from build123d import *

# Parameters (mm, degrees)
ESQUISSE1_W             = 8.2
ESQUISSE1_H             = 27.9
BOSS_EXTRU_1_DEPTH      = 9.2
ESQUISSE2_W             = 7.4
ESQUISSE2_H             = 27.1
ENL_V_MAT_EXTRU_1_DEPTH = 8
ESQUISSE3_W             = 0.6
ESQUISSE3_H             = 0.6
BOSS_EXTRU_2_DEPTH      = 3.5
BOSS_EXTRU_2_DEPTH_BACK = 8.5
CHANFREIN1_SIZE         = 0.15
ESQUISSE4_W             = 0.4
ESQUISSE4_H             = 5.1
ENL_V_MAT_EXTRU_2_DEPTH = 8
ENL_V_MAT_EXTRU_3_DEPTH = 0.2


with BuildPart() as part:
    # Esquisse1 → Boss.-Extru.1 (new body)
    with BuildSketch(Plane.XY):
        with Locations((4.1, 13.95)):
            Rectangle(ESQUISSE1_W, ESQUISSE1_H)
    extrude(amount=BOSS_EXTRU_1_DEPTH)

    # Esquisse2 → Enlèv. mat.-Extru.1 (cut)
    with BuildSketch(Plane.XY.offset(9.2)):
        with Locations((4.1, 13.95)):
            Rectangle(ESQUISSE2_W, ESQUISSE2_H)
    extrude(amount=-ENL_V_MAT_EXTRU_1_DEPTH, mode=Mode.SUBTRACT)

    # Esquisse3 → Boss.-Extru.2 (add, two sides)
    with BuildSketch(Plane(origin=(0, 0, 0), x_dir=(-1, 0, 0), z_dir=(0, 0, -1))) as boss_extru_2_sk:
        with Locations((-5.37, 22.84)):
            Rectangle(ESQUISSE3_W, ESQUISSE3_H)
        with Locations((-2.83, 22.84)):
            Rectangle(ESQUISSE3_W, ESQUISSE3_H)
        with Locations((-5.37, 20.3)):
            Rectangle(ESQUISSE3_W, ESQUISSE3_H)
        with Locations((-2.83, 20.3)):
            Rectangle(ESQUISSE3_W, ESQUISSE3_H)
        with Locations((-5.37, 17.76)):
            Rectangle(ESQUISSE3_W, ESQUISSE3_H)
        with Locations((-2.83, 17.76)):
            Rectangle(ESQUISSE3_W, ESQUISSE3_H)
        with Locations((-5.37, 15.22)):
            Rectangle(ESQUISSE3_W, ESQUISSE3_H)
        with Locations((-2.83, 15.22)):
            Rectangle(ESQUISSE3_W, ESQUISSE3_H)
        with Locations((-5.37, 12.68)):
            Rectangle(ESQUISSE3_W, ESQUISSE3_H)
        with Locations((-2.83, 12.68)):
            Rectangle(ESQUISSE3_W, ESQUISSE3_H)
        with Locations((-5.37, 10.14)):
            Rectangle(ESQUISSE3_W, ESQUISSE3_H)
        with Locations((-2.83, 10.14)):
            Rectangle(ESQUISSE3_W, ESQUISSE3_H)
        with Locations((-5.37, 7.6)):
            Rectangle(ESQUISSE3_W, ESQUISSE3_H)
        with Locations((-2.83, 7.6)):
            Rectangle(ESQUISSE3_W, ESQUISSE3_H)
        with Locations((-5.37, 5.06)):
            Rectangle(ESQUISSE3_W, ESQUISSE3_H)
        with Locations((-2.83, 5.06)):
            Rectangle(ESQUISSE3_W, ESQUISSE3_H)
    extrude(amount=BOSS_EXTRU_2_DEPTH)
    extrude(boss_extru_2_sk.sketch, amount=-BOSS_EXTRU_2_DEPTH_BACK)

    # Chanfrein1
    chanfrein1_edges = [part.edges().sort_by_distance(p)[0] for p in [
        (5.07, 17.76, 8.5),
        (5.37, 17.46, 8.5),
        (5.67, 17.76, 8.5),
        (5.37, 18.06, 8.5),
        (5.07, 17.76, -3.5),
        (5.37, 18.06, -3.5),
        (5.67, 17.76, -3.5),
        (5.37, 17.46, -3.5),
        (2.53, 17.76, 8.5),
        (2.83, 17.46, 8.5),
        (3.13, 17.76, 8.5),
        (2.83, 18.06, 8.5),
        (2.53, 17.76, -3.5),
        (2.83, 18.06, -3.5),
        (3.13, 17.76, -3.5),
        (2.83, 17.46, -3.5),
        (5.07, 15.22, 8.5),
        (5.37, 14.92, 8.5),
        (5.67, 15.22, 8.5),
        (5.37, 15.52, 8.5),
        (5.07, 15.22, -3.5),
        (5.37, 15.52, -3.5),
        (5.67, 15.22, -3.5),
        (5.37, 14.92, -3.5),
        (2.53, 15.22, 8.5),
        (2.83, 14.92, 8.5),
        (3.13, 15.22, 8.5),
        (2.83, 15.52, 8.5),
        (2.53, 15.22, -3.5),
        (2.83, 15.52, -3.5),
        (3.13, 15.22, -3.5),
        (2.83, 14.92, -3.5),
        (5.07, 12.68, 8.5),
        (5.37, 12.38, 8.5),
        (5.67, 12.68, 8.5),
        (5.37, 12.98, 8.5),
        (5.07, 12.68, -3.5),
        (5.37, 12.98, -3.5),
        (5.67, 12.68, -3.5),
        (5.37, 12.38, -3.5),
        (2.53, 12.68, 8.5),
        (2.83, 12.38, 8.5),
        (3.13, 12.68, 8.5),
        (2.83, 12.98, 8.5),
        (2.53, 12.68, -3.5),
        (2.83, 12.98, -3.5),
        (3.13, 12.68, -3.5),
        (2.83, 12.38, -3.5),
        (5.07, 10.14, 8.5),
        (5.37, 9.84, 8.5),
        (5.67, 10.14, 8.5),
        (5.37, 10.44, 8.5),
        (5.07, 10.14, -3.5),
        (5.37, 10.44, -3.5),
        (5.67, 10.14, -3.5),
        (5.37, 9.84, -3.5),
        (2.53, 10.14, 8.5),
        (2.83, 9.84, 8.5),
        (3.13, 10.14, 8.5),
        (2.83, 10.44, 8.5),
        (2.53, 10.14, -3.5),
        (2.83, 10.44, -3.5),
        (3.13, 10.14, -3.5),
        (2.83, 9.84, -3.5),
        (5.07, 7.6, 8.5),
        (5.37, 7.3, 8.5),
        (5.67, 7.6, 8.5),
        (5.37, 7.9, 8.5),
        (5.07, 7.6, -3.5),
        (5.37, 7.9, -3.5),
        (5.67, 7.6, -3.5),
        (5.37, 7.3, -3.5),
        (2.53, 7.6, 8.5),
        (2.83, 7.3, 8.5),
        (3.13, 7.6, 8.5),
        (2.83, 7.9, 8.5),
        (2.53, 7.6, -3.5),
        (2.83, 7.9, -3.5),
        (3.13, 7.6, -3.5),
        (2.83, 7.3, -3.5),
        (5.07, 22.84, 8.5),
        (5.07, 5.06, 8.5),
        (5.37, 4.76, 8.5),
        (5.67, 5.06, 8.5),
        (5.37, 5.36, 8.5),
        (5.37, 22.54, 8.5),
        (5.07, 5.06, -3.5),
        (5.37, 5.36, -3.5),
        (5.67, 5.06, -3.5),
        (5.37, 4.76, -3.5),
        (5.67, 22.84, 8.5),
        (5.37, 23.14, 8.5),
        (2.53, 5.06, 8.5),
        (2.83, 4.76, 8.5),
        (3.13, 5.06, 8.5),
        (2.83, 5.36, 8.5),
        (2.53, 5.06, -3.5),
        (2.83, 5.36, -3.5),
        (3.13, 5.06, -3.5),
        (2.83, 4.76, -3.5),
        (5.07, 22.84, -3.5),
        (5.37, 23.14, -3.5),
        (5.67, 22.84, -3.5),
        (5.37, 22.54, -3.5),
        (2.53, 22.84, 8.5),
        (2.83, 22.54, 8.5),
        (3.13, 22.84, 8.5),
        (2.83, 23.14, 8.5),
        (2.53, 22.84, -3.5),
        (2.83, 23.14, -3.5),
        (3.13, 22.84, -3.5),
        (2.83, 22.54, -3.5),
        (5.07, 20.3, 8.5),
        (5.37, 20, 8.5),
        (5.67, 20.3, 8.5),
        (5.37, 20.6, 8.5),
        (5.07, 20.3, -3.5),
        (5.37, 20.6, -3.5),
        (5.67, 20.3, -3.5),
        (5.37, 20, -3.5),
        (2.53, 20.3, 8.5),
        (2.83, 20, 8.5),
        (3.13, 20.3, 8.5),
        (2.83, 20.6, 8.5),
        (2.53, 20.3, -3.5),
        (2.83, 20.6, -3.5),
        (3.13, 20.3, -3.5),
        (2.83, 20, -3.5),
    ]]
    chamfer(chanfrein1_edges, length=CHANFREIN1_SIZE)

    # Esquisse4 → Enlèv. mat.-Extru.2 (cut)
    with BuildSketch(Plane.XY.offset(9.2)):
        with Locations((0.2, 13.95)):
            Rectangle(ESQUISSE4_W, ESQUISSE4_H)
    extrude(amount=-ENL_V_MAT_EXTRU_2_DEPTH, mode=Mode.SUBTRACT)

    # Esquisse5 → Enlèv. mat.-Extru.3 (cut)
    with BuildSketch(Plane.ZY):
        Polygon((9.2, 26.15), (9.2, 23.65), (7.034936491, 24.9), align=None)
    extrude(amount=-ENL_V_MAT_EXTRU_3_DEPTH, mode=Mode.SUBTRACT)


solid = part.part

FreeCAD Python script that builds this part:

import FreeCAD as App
import Part
import Sketcher
from FreeCAD import Vector
Q = App.Units.Quantity


def edges_at(feature, points):
    """Names of the edges that pass closest to the given points."""
    edges = feature.Shape.Edges
    near = lambda p: min(range(len(edges)), key=lambda i: edges[i].distToShape(Part.Vertex(*p))[0])
    return sorted({f"Edge{near(p) + 1}" for p in points})


def add_polygon(sketch, points):
    """Adds a closed chain of lines whose ends are joined by coincident constraints."""
    first, n = sketch.GeometryCount, len(points)
    for a, b in zip(points, points[1:] + points[:1]):
        sketch.addGeometry(Part.LineSegment(App.Vector(*a, 0), App.Vector(*b, 0)), False)
    for i in range(n):
        sketch.addConstraint(Sketcher.Constraint("Coincident", first + i, 2, first + (i + 1) % n, 1))

doc = App.newDocument("Part")
body = doc.addObject("PartDesign::Body", "Body")

sketch1 = doc.addObject("Sketcher::SketchObject", "Sketch")
body.addObject(sketch1)
sketch1.AttachmentSupport = (doc.XY_Plane, [""])
sketch1.MapMode = "FlatFace"
add_polygon(sketch1, [(0, 27.9), (0, 0), (8.2, 0), (8.2, 27.9)])
sketch1.addConstraint(Sketcher.Constraint("Vertical", 0))
sketch1.addConstraint(Sketcher.Constraint("Horizontal", 1))
sketch1.addConstraint(Sketcher.Constraint("Vertical", 2))
sketch1.addConstraint(Sketcher.Constraint("Horizontal", 3))
sketch1.addConstraint(Sketcher.Constraint("Coincident", 0, 2, -1, 1))
sketch1.addConstraint(Sketcher.Constraint("DistanceX", 1, 1, 1, 2, 8.2))
sketch1.addConstraint(Sketcher.Constraint("DistanceY", 0, 2, 0, 1, 27.9))
pad1 = doc.addObject("PartDesign::Pad", "Pad")
body.addObject(pad1)
pad1.Profile = sketch1
pad1.Length = 9.2

sketch2 = doc.addObject("Sketcher::SketchObject", "Sketch001")
body.addObject(sketch2)
sketch2.AttachmentSupport = (doc.XY_Plane, [""])
sketch2.MapMode = "FlatFace"
sketch2.AttachmentOffset = App.Placement(Vector(0, 0, 9.2), App.Rotation())
add_polygon(sketch2, [(0.4, 27.5), (0.4, 0.4), (7.8, 0.4), (7.8, 27.5)])
sketch2.addConstraint(Sketcher.Constraint("Vertical", 0))
sketch2.addConstraint(Sketcher.Constraint("Horizontal", 1))
sketch2.addConstraint(Sketcher.Constraint("Vertical", 2))
sketch2.addConstraint(Sketcher.Constraint("Horizontal", 3))
sketch2.addConstraint(Sketcher.Constraint("DistanceX", 1, 1, 1, 2, 7.4))
sketch2.addConstraint(Sketcher.Constraint("DistanceY", 0, 2, 0, 1, 27.1))
sketch2.addConstraint(Sketcher.Constraint("DistanceX", -1, 1, 0, 2, 0.4))
sketch2.addConstraint(Sketcher.Constraint("DistanceY", -1, 1, 0, 2, 0.4))
pocket1 = doc.addObject("PartDesign::Pocket", "Pocket")
body.addObject(pocket1)
pocket1.Profile = sketch2
pocket1.Length = 8

sketch3 = doc.addObject("Sketcher::SketchObject", "Sketch002")
body.addObject(sketch3)
sketch3.AttachmentSupport = (doc.XY_Plane, [""])
sketch3.MapMode = "FlatFace"
add_polygon(sketch3, [(5.67, 23.14), (5.67, 22.54), (5.07, 22.54), (5.07, 23.14)])
add_polygon(sketch3, [(3.13, 23.14), (3.13, 22.54), (2.53, 22.54), (2.53, 23.14)])
add_polygon(sketch3, [(5.67, 20.6), (5.67, 20), (5.07, 20), (5.07, 20.6)])
add_polygon(sketch3, [(3.13, 20.6), (3.13, 20), (2.53, 20), (2.53, 20.6)])
add_polygon(sketch3, [(5.67, 18.06), (5.67, 17.46), (5.07, 17.46), (5.07, 18.06)])
add_polygon(sketch3, [(3.13, 18.06), (3.13, 17.46), (2.53, 17.46), (2.53, 18.06)])
add_polygon(sketch3, [(5.67, 15.52), (5.67, 14.92), (5.07, 14.92), (5.07, 15.52)])
add_polygon(sketch3, [(3.13, 15.52), (3.13, 14.92), (2.53, 14.92), (2.53, 15.52)])
add_polygon(sketch3, [(5.67, 12.98), (5.67, 12.38), (5.07, 12.38), (5.07, 12.98)])
add_polygon(sketch3, [(3.13, 12.98), (3.13, 12.38), (2.53, 12.38), (2.53, 12.98)])
add_polygon(sketch3, [(5.67, 10.44), (5.67, 9.84), (5.07, 9.84), (5.07, 10.44)])
add_polygon(sketch3, [(3.13, 10.44), (3.13, 9.84), (2.53, 9.84), (2.53, 10.44)])
add_polygon(sketch3, [(5.67, 7.9), (5.67, 7.3), (5.07, 7.3), (5.07, 7.9)])
add_polygon(sketch3, [(3.13, 7.9), (3.13, 7.3), (2.53, 7.3), (2.53, 7.9)])
add_polygon(sketch3, [(5.67, 5.36), (5.67, 4.76), (5.07, 4.76), (5.07, 5.36)])
add_polygon(sketch3, [(3.13, 5.36), (3.13, 4.76), (2.53, 4.76), (2.53, 5.36)])
sketch3.addConstraint(Sketcher.Constraint("Vertical", 0))
sketch3.addConstraint(Sketcher.Constraint("Horizontal", 1))
sketch3.addConstraint(Sketcher.Constraint("Vertical", 2))
sketch3.addConstraint(Sketcher.Constraint("Horizontal", 3))
sketch3.addConstraint(Sketcher.Constraint("Vertical", 4))
sketch3.addConstraint(Sketcher.Constraint("Horizontal", 5))
sketch3.addConstraint(Sketcher.Constraint("Vertical", 6))
sketch3.addConstraint(Sketcher.Constraint("Horizontal", 7))
sketch3.addConstraint(Sketcher.Constraint("Vertical", 8))
sketch3.addConstraint(Sketcher.Constraint("Horizontal", 9))
sketch3.addConstraint(Sketcher.Constraint("Vertical", 10))
sketch3.addConstraint(Sketcher.Constraint("Horizontal", 11))
sketch3.addConstraint(Sketcher.Constraint("Vertical", 12))
sketch3.addConstraint(Sketcher.Constraint("Horizontal", 13))
sketch3.addConstraint(Sketcher.Constraint("Vertical", 14))
sketch3.addConstraint(Sketcher.Constraint("Horizontal", 15))
sketch3.addConstraint(Sketcher.Constraint("Vertical", 16))
sketch3.addConstraint(Sketcher.Constraint("Horizontal", 17))
sketch3.addConstraint(Sketcher.Constraint("Vertical", 18))
sketch3.addConstraint(Sketcher.Constraint("Horizontal", 19))
sketch3.addConstraint(Sketcher.Constraint("Vertical", 20))
sketch3.addConstraint(Sketcher.Constraint("Horizontal", 21))
sketch3.addConstraint(Sketcher.Constraint("Vertical", 22))
sketch3.addConstraint(Sketcher.Constraint("Horizontal", 23))
sketch3.addConstraint(Sketcher.Constraint("Vertical", 24))
sketch3.addConstraint(Sketcher.Constraint("Horizontal", 25))
sketch3.addConstraint(Sketcher.Constraint("Vertical", 26))
sketch3.addConstraint(Sketcher.Constraint("Horizontal", 27))
sketch3.addConstraint(Sketcher.Constraint("Vertical", 28))
sketch3.addConstraint(Sketcher.Constraint("Horizontal", 29))
sketch3.addConstraint(Sketcher.Constraint("Vertical", 30))
sketch3.addConstraint(Sketcher.Constraint("Horizontal", 31))
sketch3.addConstraint(Sketcher.Constraint("Vertical", 32))
sketch3.addConstraint(Sketcher.Constraint("Horizontal", 33))
sketch3.addConstraint(Sketcher.Constraint("Vertical", 34))
sketch3.addConstraint(Sketcher.Constraint("Horizontal", 35))
sketch3.addConstraint(Sketcher.Constraint("Vertical", 36))
sketch3.addConstraint(Sketcher.Constraint("Horizontal", 37))
sketch3.addConstraint(Sketcher.Constraint("Vertical", 38))
sketch3.addConstraint(Sketcher.Constraint("Horizontal", 39))
sketch3.addConstraint(Sketcher.Constraint("Vertical", 40))
sketch3.addConstraint(Sketcher.Constraint("Horizontal", 41))
sketch3.addConstraint(Sketcher.Constraint("Vertical", 42))
sketch3.addConstraint(Sketcher.Constraint("Horizontal", 43))
sketch3.addConstraint(Sketcher.Constraint("Vertical", 44))
sketch3.addConstraint(Sketcher.Constraint("Horizontal", 45))
sketch3.addConstraint(Sketcher.Constraint("Vertical", 46))
sketch3.addConstraint(Sketcher.Constraint("Horizontal", 47))
sketch3.addConstraint(Sketcher.Constraint("Vertical", 48))
sketch3.addConstraint(Sketcher.Constraint("Horizontal", 49))
sketch3.addConstraint(Sketcher.Constraint("Vertical", 50))
sketch3.addConstraint(Sketcher.Constraint("Horizontal", 51))
sketch3.addConstraint(Sketcher.Constraint("Vertical", 52))
sketch3.addConstraint(Sketcher.Constraint("Horizontal", 53))
sketch3.addConstraint(Sketcher.Constraint("Vertical", 54))
sketch3.addConstraint(Sketcher.Constraint("Horizontal", 55))
sketch3.addConstraint(Sketcher.Constraint("Vertical", 56))
sketch3.addConstraint(Sketcher.Constraint("Horizontal", 57))
sketch3.addConstraint(Sketcher.Constraint("Vertical", 58))
sketch3.addConstraint(Sketcher.Constraint("Horizontal", 59))
sketch3.addConstraint(Sketcher.Constraint("Vertical", 60))
sketch3.addConstraint(Sketcher.Constraint("Horizontal", 61))
sketch3.addConstraint(Sketcher.Constraint("Vertical", 62))
sketch3.addConstraint(Sketcher.Constraint("Horizontal", 63))
sketch3.addConstraint(Sketcher.Constraint("Horizontal", 1, 2, 4, 2))
sketch3.addConstraint(Sketcher.Constraint("Horizontal", 3, 2, 6, 2))
sketch3.addConstraint(Sketcher.Constraint("Horizontal", 9, 2, 12, 2))
sketch3.addConstraint(Sketcher.Constraint("Horizontal", 11, 2, 14, 2))
sketch3.addConstraint(Sketcher.Constraint("Horizontal", 17, 2, 20, 2))
sketch3.addConstraint(Sketcher.Constraint("Horizontal", 19, 2, 22, 2))
sketch3.addConstraint(Sketcher.Constraint("Horizontal", 25, 2, 28, 2))
sketch3.addConstraint(Sketcher.Constraint("Horizontal", 27, 2, 30, 2))
sketch3.addConstraint(Sketcher.Constraint("Horizontal", 33, 2, 36, 2))
sketch3.addConstraint(Sketcher.Constraint("Horizontal", 35, 2, 38, 2))
sketch3.addConstraint(Sketcher.Constraint("Horizontal", 41, 2, 44, 2))
sketch3.addConstraint(Sketcher.Constraint("Horizontal", 43, 2, 46, 2))
sketch3.addConstraint(Sketcher.Constraint("Horizontal", 49, 2, 52, 2))
sketch3.addConstraint(Sketcher.Constraint("Horizontal", 51, 2, 54, 2))
sketch3.addConstraint(Sketcher.Constraint("Horizontal", 57, 2, 60, 2))
sketch3.addConstraint(Sketcher.Constraint("Horizontal", 59, 2, 62, 2))
sketch3.addConstraint(Sketcher.Constraint("Vertical", 3, 2, 8, 2))
sketch3.addConstraint(Sketcher.Constraint("Vertical", 2, 2, 9, 2))
sketch3.addConstraint(Sketcher.Constraint("Vertical", 7, 2, 12, 2))
sketch3.addConstraint(Sketcher.Constraint("Vertical", 6, 2, 13, 2))
sketch3.addConstraint(Sketcher.Constraint("Vertical", 11, 2, 16, 2))
sketch3.addConstraint(Sketcher.Constraint("Vertical", 10, 2, 17, 2))
sketch3.addConstraint(Sketcher.Constraint("Vertical", 15, 2, 20, 2))
sketch3.addConstraint(Sketcher.Constraint("Vertical", 14, 2, 21, 2))
sketch3.addConstraint(Sketcher.Constraint("Vertical", 19, 2, 24, 2))
sketch3.addConstraint(Sketcher.Constraint("Vertical", 18, 2, 25, 2))
sketch3.addConstraint(Sketcher.Constraint("Vertical", 23, 2, 28, 2))
sketch3.addConstraint(Sketcher.Constraint("Vertical", 22, 2, 29, 2))
sketch3.addConstraint(Sketcher.Constraint("Vertical", 27, 2, 32, 2))
sketch3.addConstraint(Sketcher.Constraint("Vertical", 26, 2, 33, 2))
sketch3.addConstraint(Sketcher.Constraint("Vertical", 31, 2, 36, 2))
sketch3.addConstraint(Sketcher.Constraint("Vertical", 30, 2, 37, 2))
sketch3.addConstraint(Sketcher.Constraint("Vertical", 35, 2, 40, 2))
sketch3.addConstraint(Sketcher.Constraint("Vertical", 34, 2, 41, 2))
sketch3.addConstraint(Sketcher.Constraint("Vertical", 39, 2, 44, 2))
sketch3.addConstraint(Sketcher.Constraint("Vertical", 38, 2, 45, 2))
sketch3.addConstraint(Sketcher.Constraint("Vertical", 43, 2, 48, 2))
sketch3.addConstraint(Sketcher.Constraint("Vertical", 42, 2, 49, 2))
sketch3.addConstraint(Sketcher.Constraint("Vertical", 47, 2, 52, 2))
sketch3.addConstraint(Sketcher.Constraint("Vertical", 46, 2, 53, 2))
sketch3.addConstraint(Sketcher.Constraint("Vertical", 51, 2, 56, 2))
sketch3.addConstraint(Sketcher.Constraint("Vertical", 50, 2, 57, 2))
sketch3.addConstraint(Sketcher.Constraint("Vertical", 55, 2, 60, 2))
sketch3.addConstraint(Sketcher.Constraint("Vertical", 54, 2, 61, 2))
sketch3.addConstraint(Sketcher.Constraint("Equal", 3, 5))
sketch3.addConstraint(Sketcher.Constraint("Equal", 63, 0))
sketch3.addConstraint(Sketcher.Constraint("Equal", 6, 8))
sketch3.addConstraint(Sketcher.Constraint("Equal", 14, 16))
sketch3.addConstraint(Sketcher.Constraint("Equal", 22, 24))
sketch3.addConstraint(Sketcher.Constraint("Equal", 30, 32))
sketch3.addConstraint(Sketcher.Constraint("Equal", 38, 40))
sketch3.addConstraint(Sketcher.Constraint("Equal", 46, 48))
sketch3.addConstraint(Sketcher.Constraint("Equal", 54, 56))
sketch3.addConstraint(Sketcher.Constraint("DistanceX", 1, 2, 1, 1, 0.6))
sketch3.addConstraint(Sketcher.Constraint("DistanceY", -1, 1, 8, 2, 20.0))
sketch3.addConstraint(Sketcher.Constraint("DistanceY", -1, 1, 48, 2, 7.3))
sketch3.addConstraint(Sketcher.Constraint("DistanceX", -1, 1, 0, 2, 5.67))
sketch3.addConstraint(Sketcher.Constraint("DistanceY", -1, 1, 0, 2, 22.54))
sketch3.addConstraint(Sketcher.Constraint("DistanceX", -1, 1, 4, 2, 3.13))
sketch3.addConstraint(Sketcher.Constraint("DistanceY", -1, 1, 16, 2, 17.46))
sketch3.addConstraint(Sketcher.Constraint("DistanceY", -1, 1, 24, 2, 14.92))
sketch3.addConstraint(Sketcher.Constraint("DistanceY", -1, 1, 32, 2, 12.38))
sketch3.addConstraint(Sketcher.Constraint("DistanceY", -1, 1, 40, 2, 9.84))
sketch3.addConstraint(Sketcher.Constraint("DistanceY", -1, 1, 56, 2, 4.76))
pad2 = doc.addObject("PartDesign::Pad", "Pad001")
body.addObject(pad2)
pad2.Profile = sketch3
pad2.Type = "TwoLengths"
pad2.Length = 3.5
pad2.Length2 = 8.5
pad2.Reversed = True
doc.recompute()

chamfer = doc.addObject("PartDesign::Chamfer", "Chamfer")
body.addObject(chamfer)
chamfer.Base = (pad2, edges_at(pad2, [
    (5.07, 17.76, 8.5),
    (5.37, 17.46, 8.5),
    (5.67, 17.76, 8.5),
    (5.37, 18.06, 8.5),
    (5.07, 17.76, -3.5),
    (5.37, 18.06, -3.5),
    (5.67, 17.76, -3.5),
    (5.37, 17.46, -3.5),
    (2.53, 17.76, 8.5),
    (2.83, 17.46, 8.5),
    (3.13, 17.76, 8.5),
    (2.83, 18.06, 8.5),
    (2.53, 17.76, -3.5),
    (2.83, 18.06, -3.5),
    (3.13, 17.76, -3.5),
    (2.83, 17.46, -3.5),
    (5.07, 15.22, 8.5),
    (5.37, 14.92, 8.5),
    (5.67, 15.22, 8.5),
    (5.37, 15.52, 8.5),
    (5.07, 15.22, -3.5),
    (5.37, 15.52, -3.5),
    (5.67, 15.22, -3.5),
    (5.37, 14.92, -3.5),
    (2.53, 15.22, 8.5),
    (2.83, 14.92, 8.5),
    (3.13, 15.22, 8.5),
    (2.83, 15.52, 8.5),
    (2.53, 15.22, -3.5),
    (2.83, 15.52, -3.5),
    (3.13, 15.22, -3.5),
    (2.83, 14.92, -3.5),
    (5.07, 12.68, 8.5),
    (5.37, 12.38, 8.5),
    (5.67, 12.68, 8.5),
    (5.37, 12.98, 8.5),
    (5.07, 12.68, -3.5),
    (5.37, 12.98, -3.5),
    (5.67, 12.68, -3.5),
    (5.37, 12.38, -3.5),
    (2.53, 12.68, 8.5),
    (2.83, 12.38, 8.5),
    (3.13, 12.68, 8.5),
    (2.83, 12.98, 8.5),
    (2.53, 12.68, -3.5),
    (2.83, 12.98, -3.5),
    (3.13, 12.68, -3.5),
    (2.83, 12.38, -3.5),
    (5.07, 10.14, 8.5),
    (5.37, 9.84, 8.5),
    (5.67, 10.14, 8.5),
    (5.37, 10.44, 8.5),
    (5.07, 10.14, -3.5),
    (5.37, 10.44, -3.5),
    (5.67, 10.14, -3.5),
    (5.37, 9.84, -3.5),
    (2.53, 10.14, 8.5),
    (2.83, 9.84, 8.5),
    (3.13, 10.14, 8.5),
    (2.83, 10.44, 8.5),
    (2.53, 10.14, -3.5),
    (2.83, 10.44, -3.5),
    (3.13, 10.14, -3.5),
    (2.83, 9.84, -3.5),
    (5.07, 7.6, 8.5),
    (5.37, 7.3, 8.5),
    (5.67, 7.6, 8.5),
    (5.37, 7.9, 8.5),
    (5.07, 7.6, -3.5),
    (5.37, 7.9, -3.5),
    (5.67, 7.6, -3.5),
    (5.37, 7.3, -3.5),
    (2.53, 7.6, 8.5),
    (2.83, 7.3, 8.5),
    (3.13, 7.6, 8.5),
    (2.83, 7.9, 8.5),
    (2.53, 7.6, -3.5),
    (2.83, 7.9, -3.5),
    (3.13, 7.6, -3.5),
    (2.83, 7.3, -3.5),
    (5.07, 22.84, 8.5),
    (5.07, 5.06, 8.5),
    (5.37, 4.76, 8.5),
    (5.67, 5.06, 8.5),
    (5.37, 5.36, 8.5),
    (5.37, 22.54, 8.5),
    (5.07, 5.06, -3.5),
    (5.37, 5.36, -3.5),
    (5.67, 5.06, -3.5),
    (5.37, 4.76, -3.5),
    (5.67, 22.84, 8.5),
    (5.37, 23.14, 8.5),
    (2.53, 5.06, 8.5),
    (2.83, 4.76, 8.5),
    (3.13, 5.06, 8.5),
    (2.83, 5.36, 8.5),
    (2.53, 5.06, -3.5),
    (2.83, 5.36, -3.5),
    (3.13, 5.06, -3.5),
    (2.83, 4.76, -3.5),
    (5.07, 22.84, -3.5),
    (5.37, 23.14, -3.5),
    (5.67, 22.84, -3.5),
    (5.37, 22.54, -3.5),
    (2.53, 22.84, 8.5),
    (2.83, 22.54, 8.5),
    (3.13, 22.84, 8.5),
    (2.83, 23.14, 8.5),
    (2.53, 22.84, -3.5),
    (2.83, 23.14, -3.5),
    (3.13, 22.84, -3.5),
    (2.83, 22.54, -3.5),
    (5.07, 20.3, 8.5),
    (5.37, 20, 8.5),
    (5.67, 20.3, 8.5),
    (5.37, 20.6, 8.5),
    (5.07, 20.3, -3.5),
    (5.37, 20.6, -3.5),
    (5.67, 20.3, -3.5),
    (5.37, 20, -3.5),
    (2.53, 20.3, 8.5),
    (2.83, 20, 8.5),
    (3.13, 20.3, 8.5),
    (2.83, 20.6, 8.5),
    (2.53, 20.3, -3.5),
    (2.83, 20.6, -3.5),
    (3.13, 20.3, -3.5),
    (2.83, 20, -3.5),
]))
chamfer.Size = 0.15

sketch4 = doc.addObject("Sketcher::SketchObject", "Sketch003")
body.addObject(sketch4)
sketch4.AttachmentSupport = (doc.XY_Plane, [""])
sketch4.MapMode = "FlatFace"
sketch4.AttachmentOffset = App.Placement(Vector(0, 0, 9.2), App.Rotation())
add_polygon(sketch4, [(0, 16.5), (0, 11.4), (0.4, 11.4), (0.4, 16.5)])
sketch4.addConstraint(Sketcher.Constraint("Vertical", 0))
sketch4.addConstraint(Sketcher.Constraint("Horizontal", 1))
sketch4.addConstraint(Sketcher.Constraint("Vertical", 2))
sketch4.addConstraint(Sketcher.Constraint("Horizontal", 3))
sketch4.addConstraint(Sketcher.Constraint("PointOnObject", 0, 2, -2))
sketch4.addConstraint(Sketcher.Constraint("DistanceX", 1, 1, 1, 2, 0.4))
sketch4.addConstraint(Sketcher.Constraint("DistanceY", 0, 2, 0, 1, 5.1))
sketch4.addConstraint(Sketcher.Constraint("DistanceY", -1, 1, 0, 2, 11.4))
pocket2 = doc.addObject("PartDesign::Pocket", "Pocket001")
body.addObject(pocket2)
pocket2.Profile = sketch4
pocket2.Length = 8

sketch5 = doc.addObject("Sketcher::SketchObject", "Sketch004")
body.addObject(sketch5)
sketch5.AttachmentSupport = (doc.YZ_Plane, [""])
sketch5.MapMode = "FlatFace"
add_polygon(sketch5, [(23.65, 9.2), (26.15, 9.2), (24.9, 7.034936)])
sketch5.addConstraint(Sketcher.Constraint("Horizontal", 0))
sketch5.addConstraint(Sketcher.Constraint("Equal", 1, 2))
sketch5.addConstraint(Sketcher.Constraint("Angle", 1, Q("-120 deg")))
sketch5.addConstraint(Sketcher.Constraint("DistanceX", 0, 1, 0, 2, 2.5))
sketch5.addConstraint(Sketcher.Constraint("DistanceY", -1, 1, 0, 2, 9.2))
sketch5.addConstraint(Sketcher.Constraint("DistanceX", -1, 1, 1, 2, 24.9))
pocket3 = doc.addObject("PartDesign::Pocket", "Pocket002")
body.addObject(pocket3)
pocket3.Profile = sketch5
pocket3.Length = 0.2
pocket3.Reversed = True

doc.recompute()
